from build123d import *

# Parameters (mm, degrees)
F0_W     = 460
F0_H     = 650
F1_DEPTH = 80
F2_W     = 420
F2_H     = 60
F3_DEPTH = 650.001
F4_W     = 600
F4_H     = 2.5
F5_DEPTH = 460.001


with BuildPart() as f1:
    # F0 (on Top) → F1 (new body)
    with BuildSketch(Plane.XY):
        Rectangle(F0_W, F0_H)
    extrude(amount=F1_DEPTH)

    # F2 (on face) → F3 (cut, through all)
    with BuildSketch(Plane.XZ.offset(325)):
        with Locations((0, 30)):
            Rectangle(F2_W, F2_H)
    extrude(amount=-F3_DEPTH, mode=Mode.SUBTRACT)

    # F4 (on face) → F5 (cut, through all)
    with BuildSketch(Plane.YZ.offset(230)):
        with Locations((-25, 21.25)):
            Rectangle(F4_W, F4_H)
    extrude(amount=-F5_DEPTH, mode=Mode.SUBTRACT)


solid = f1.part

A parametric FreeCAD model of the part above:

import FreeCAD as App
import Part
import Sketcher
from FreeCAD import Vector

doc = App.newDocument("Part")
params = doc.addObject("Spreadsheet::Sheet", "Params")
for row, (alias, value) in enumerate([
    ("sketch1_width", "460 mm"),
    ("sketch1_height", "650 mm"),
    ("pad1_length", "80 mm"),
    ("sketch2_width", "420 mm"),
    ("sketch2_height", "60 mm"),
    ("sketch3_width", "600 mm"),
    ("sketch3_height", "2.5 mm"),
], start=1):
    params.set(f"A{row}", alias)
    params.set(f"B{row}", "=" + value)
    params.setAlias(f"B{row}", alias)

body = doc.addObject("PartDesign::Body", "Body")

# Sketch on XY plane
sketch1 = doc.addObject("Sketcher::SketchObject", "Sketch")
body.addObject(sketch1)
sketch1.AttachmentSupport = (doc.XY_Plane, [""])
sketch1.MapMode = "FlatFace"
sketch1.addGeometry([
    Part.LineSegment(Vector(-230, 325, 0), Vector(-230, -325, 0)),
    Part.LineSegment(Vector(-230, -325, 0), Vector(230, -325, 0)),
    Part.LineSegment(Vector(230, -325, 0), Vector(230, 325, 0)),
    Part.LineSegment(Vector(230, 325, 0), Vector(-230, 325, 0)),
], False)
sketch1.addConstraint([
    Sketcher.Constraint("Coincident", 0, 2, 1, 1),
    Sketcher.Constraint("Coincident", 1, 2, 2, 1),
    Sketcher.Constraint("Coincident", 2, 2, 3, 1),
    Sketcher.Constraint("Coincident", 3, 2, 0, 1),
    Sketcher.Constraint("Vertical", 0),
    Sketcher.Constraint("Horizontal", 1),
    Sketcher.Constraint("Vertical", 2),
    Sketcher.Constraint("Horizontal", 3),
    Sketcher.Constraint("Symmetric", 0, 2, 2, 2, -1, 1),
    Sketcher.Constraint("DistanceX", 1, 1, 1, 2, 460.0),
    Sketcher.Constraint("DistanceY", 0, 2, 0, 1, 650.0),
])
sketch1.setExpression("Constraints[9]", "Params.sketch1_width")
sketch1.setExpression("Constraints[10]", "Params.sketch1_height")
pad1 = doc.addObject("PartDesign::Pad", "Pad")
body.addObject(pad1)
pad1.Profile = sketch1
pad1.setExpression("Length", "Params.pad1_length")

# Sketch on XZ plane
sketch2 = doc.addObject("Sketcher::SketchObject", "Sketch001")
body.addObject(sketch2)
sketch2.AttachmentSupport = (doc.XZ_Plane, [""])
sketch2.MapMode = "FlatFace"
sketch2.AttachmentOffset = App.Placement(Vector(0, 0, 325), App.Rotation())
sketch2.addGeometry([
    Part.LineSegment(Vector(-210, 60, 0), Vector(-210, 0, 0)),
    Part.LineSegment(Vector(-210, 0, 0), Vector(210, 0, 0)),
    Part.LineSegment(Vector(210, 0, 0), Vector(210, 60, 0)),
    Part.LineSegment(Vector(210, 60, 0), Vector(-210, 60, 0)),
], False)
sketch2.addConstraint([
    Sketcher.Constraint("Coincident", 0, 2, 1, 1),
    Sketcher.Constraint("Coincident", 1, 2, 2, 1),
    Sketcher.Constraint("Coincident", 2, 2, 3, 1),
    Sketcher.Constraint("Coincident", 3, 2, 0, 1),
    Sketcher.Constraint("Vertical", 0),
    Sketcher.Constraint("Horizontal", 1),
    Sketcher.Constraint("Vertical", 2),
    Sketcher.Constraint("Horizontal", 3),
    Sketcher.Constraint("Symmetric", 0, 2, 1, 2, -1, 1),
    Sketcher.Constraint("DistanceX", 1, 1, 1, 2, 420.0),
    Sketcher.Constraint("DistanceY", 0, 2, 0, 1, 60.0),
])
sketch2.setExpression("Constraints[9]", "Params.sketch2_width")
sketch2.setExpression("Constraints[10]", "Params.sketch2_height")
pocket1 = doc.addObject("PartDesign::Pocket", "Pocket")
body.addObject(pocket1)
pocket1.Profile = sketch2
pocket1.Type = "ThroughAll"

# Sketch on YZ plane
sketch3 = doc.addObject("Sketcher::SketchObject", "Sketch002")
body.addObject(sketch3)
sketch3.AttachmentSupport = (doc.YZ_Plane, [""])
sketch3.MapMode = "FlatFace"
sketch3.AttachmentOffset = App.Placement(Vector(0, 0, 230), App.Rotation())
sketch3.addGeometry([
    Part.LineSegment(Vector(-325, 22.5, 0), Vector(-325, 20, 0)),
    Part.LineSegment(Vector(-325, 20, 0), Vector(275, 20, 0)),
    Part.LineSegment(Vector(275, 20, 0), Vector(275, 22.5, 0)),
    Part.LineSegment(Vector(275, 22.5, 0), Vector(-325, 22.5, 0)),
], False)
sketch3.addConstraint([
    Sketcher.Constraint("Coincident", 0, 2, 1, 1),
    Sketcher.Constraint("Coincident", 1, 2, 2, 1),
    Sketcher.Constraint("Coincident", 2, 2, 3, 1),
    Sketcher.Constraint("Coincident", 3, 2, 0, 1),
    Sketcher.Constraint("Vertical", 0),
    Sketcher.Constraint("Horizontal", 1),
    Sketcher.Constraint("Vertical", 2),
    Sketcher.Constraint("Horizontal", 3),
    Sketcher.Constraint("DistanceX", 1, 1, 1, 2, 600.0),
    Sketcher.Constraint("DistanceY", 0, 2, 0, 1, 2.5),
    Sketcher.Constraint("DistanceX", 0, 2, -1, 1, 325.0),
    Sketcher.Constraint("DistanceY", -1, 1, 0, 2, 20.0),
])
sketch3.setExpression("Constraints[8]", "Params.sketch3_width")
sketch3.setExpression("Constraints[9]", "Params.sketch3_height")
pocket2 = doc.addObject("PartDesign::Pocket", "Pocket001")
body.addObject(pocket2)
pocket2.Profile = sketch3
pocket2.Type = "ThroughAll"

doc.recompute()
